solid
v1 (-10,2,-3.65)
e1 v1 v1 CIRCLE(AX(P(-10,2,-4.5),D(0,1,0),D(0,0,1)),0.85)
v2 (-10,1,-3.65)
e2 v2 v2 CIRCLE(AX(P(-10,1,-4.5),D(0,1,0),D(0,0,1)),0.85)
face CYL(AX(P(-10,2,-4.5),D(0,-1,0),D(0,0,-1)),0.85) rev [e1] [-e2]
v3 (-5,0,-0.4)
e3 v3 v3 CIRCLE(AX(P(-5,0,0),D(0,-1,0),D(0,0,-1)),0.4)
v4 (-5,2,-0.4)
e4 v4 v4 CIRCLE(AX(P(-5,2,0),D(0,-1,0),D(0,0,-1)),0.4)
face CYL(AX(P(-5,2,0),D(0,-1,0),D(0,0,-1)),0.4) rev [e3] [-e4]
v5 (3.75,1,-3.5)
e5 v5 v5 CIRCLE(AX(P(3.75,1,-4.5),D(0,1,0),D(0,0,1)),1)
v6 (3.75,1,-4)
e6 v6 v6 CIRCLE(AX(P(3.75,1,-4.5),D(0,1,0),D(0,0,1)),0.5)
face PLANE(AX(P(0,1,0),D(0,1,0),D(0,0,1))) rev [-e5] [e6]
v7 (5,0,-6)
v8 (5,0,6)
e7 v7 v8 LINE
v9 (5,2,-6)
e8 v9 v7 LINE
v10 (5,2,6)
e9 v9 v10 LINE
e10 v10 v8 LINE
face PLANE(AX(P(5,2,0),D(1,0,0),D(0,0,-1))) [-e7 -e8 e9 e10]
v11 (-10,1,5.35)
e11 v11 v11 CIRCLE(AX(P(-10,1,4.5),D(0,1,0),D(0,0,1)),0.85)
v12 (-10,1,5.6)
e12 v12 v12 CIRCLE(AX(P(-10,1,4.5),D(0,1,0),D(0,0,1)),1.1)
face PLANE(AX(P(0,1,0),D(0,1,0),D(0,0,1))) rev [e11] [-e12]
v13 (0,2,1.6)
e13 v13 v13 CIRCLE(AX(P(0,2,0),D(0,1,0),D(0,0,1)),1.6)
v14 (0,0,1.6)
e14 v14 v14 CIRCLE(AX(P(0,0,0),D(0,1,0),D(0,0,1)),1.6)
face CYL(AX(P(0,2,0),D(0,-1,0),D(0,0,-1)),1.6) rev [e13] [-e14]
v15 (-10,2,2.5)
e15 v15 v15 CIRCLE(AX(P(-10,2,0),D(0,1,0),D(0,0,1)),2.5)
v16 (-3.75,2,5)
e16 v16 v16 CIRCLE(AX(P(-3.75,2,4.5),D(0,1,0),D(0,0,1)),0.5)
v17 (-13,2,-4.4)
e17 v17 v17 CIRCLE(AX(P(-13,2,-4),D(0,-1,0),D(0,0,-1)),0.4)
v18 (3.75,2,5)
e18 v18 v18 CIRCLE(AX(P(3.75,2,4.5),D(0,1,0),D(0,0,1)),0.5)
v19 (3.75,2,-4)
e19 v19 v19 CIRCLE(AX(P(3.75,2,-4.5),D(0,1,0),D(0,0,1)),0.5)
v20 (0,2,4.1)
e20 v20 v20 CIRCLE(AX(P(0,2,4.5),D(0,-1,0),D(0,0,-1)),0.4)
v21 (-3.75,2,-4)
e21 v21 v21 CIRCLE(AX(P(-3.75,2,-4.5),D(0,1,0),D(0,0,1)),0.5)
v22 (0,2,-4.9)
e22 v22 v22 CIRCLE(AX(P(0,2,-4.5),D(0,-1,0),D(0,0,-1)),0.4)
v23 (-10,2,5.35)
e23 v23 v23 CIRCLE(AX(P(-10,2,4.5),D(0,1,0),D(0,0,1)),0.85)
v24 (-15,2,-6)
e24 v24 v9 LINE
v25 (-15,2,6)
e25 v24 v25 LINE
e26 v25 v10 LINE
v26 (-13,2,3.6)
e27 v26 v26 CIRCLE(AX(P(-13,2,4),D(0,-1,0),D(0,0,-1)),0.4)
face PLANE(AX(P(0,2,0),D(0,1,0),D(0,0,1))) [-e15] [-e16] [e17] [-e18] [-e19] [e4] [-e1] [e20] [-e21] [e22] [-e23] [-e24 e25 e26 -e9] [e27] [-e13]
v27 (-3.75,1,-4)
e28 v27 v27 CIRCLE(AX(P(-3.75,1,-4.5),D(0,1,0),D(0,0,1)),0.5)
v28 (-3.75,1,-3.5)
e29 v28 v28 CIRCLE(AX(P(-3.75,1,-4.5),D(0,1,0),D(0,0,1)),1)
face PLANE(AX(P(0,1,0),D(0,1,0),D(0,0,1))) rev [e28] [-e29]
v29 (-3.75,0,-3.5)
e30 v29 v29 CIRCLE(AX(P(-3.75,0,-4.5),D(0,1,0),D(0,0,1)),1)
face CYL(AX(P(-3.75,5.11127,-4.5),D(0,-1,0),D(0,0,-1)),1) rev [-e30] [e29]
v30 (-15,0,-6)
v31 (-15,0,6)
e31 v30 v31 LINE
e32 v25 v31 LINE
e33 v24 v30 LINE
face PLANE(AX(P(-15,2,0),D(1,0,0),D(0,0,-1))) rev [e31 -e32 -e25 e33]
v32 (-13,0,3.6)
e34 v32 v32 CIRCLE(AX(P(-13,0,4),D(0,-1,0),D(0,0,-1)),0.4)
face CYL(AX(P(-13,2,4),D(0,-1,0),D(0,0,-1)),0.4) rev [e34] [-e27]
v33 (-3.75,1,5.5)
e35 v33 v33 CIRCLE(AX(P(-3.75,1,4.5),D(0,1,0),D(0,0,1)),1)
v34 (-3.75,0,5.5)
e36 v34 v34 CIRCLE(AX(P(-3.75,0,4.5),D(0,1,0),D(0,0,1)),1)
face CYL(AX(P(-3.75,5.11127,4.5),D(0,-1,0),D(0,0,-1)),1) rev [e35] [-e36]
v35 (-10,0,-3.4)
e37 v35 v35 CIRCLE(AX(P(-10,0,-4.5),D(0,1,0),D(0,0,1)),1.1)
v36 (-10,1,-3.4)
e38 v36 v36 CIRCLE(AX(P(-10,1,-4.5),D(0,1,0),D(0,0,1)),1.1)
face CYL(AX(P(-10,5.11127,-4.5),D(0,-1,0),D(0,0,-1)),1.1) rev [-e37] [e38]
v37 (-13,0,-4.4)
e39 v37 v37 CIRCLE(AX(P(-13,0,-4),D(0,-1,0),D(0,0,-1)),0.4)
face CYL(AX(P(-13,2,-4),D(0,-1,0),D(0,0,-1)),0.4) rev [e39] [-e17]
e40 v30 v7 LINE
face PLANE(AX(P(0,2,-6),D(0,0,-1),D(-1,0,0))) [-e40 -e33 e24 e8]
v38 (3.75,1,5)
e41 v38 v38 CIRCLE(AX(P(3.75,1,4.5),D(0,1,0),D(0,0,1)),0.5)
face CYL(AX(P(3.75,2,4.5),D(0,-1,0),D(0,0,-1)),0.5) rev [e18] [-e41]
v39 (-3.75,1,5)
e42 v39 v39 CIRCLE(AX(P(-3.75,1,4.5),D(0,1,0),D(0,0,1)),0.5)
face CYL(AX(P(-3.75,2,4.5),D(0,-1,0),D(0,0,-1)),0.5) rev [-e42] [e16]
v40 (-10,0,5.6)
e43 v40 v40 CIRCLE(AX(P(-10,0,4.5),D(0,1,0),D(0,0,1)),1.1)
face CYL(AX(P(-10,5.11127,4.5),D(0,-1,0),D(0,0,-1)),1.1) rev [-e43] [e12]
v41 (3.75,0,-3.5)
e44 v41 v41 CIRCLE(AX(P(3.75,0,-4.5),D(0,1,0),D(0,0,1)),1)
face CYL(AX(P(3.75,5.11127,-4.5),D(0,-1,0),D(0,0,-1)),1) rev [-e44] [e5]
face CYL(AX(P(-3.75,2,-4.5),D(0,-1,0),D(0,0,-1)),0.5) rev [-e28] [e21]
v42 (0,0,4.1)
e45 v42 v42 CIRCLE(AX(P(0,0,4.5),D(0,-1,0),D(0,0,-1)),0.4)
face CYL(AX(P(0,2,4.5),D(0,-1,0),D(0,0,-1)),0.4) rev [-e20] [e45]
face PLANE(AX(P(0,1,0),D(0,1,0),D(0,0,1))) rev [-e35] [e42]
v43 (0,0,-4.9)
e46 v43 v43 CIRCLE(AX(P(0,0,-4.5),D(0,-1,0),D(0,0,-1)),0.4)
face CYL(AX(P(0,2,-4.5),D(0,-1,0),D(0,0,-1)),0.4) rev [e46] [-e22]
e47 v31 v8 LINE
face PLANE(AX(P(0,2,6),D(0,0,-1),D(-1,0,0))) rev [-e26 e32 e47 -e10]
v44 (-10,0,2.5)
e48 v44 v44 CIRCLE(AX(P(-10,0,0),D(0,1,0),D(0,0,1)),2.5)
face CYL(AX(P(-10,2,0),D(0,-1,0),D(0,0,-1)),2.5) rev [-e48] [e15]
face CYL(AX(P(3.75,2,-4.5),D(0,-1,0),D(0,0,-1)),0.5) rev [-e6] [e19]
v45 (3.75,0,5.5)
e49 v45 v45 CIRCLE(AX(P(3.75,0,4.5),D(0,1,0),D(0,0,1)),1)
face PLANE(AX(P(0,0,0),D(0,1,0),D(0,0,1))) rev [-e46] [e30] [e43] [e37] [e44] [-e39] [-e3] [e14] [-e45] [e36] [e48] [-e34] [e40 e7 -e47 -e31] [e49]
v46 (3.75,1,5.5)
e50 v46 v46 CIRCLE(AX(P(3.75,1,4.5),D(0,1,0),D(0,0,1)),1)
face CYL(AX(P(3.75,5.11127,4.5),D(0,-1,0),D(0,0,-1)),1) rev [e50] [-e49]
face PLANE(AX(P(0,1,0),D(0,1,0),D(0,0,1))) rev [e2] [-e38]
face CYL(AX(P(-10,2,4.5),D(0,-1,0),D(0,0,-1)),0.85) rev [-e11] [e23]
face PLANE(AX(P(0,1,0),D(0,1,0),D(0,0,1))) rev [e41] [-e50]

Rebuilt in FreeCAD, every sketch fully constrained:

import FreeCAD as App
import Part
import Sketcher
from FreeCAD import Vector
Q = App.Units.Quantity


def add_polygon(sketch, points):
    """Adds a closed chain of lines whose ends are joined by coincident constraints."""
    first, n = sketch.GeometryCount, len(points)
    for a, b in zip(points, points[1:] + points[:1]):
        sketch.addGeometry(Part.LineSegment(App.Vector(*a, 0), App.Vector(*b, 0)), False)
    for i in range(n):
        sketch.addConstraint(Sketcher.Constraint("Coincident", first + i, 2, first + (i + 1) % n, 1))

doc = App.newDocument("Part")
body = doc.addObject("PartDesign::Body", "Body")

# Sketch on XZ plane
sketch1 = doc.addObject("Sketcher::SketchObject", "Sketch")
body.addObject(sketch1)
sketch1.AttachmentSupport = (doc.XZ_Plane, [""])
sketch1.MapMode = "FlatFace"
add_polygon(sketch1, [(-15, -6), (-15, 6), (5, 6), (5, -6)])  # lines 0-3
sketch1.addGeometry(Part.Circle(Vector(-10, 0, 0), Vector(0, 0, 1), 2.5), False)  # 4
sketch1.addGeometry(Part.Circle(Vector(0, 0, 0), Vector(0, 0, 1), 1.6), False)  # 5
sketch1.addConstraint([
    Sketcher.Constraint("Vertical", 0),
    Sketcher.Constraint("Horizontal", 1),
    Sketcher.Constraint("Vertical", 2),
    Sketcher.Constraint("Horizontal", 3),
    Sketcher.Constraint("Coincident", 5, 3, -1, 1),
    Sketcher.Constraint("PointOnObject", 4, 3, -1),
    Sketcher.Constraint("Diameter", 4, Q("5 mm")),
    Sketcher.Constraint("Diameter", 5, Q("3.2 mm")),
    Sketcher.Constraint("DistanceX", 1, 1, 1, 2, Q("20 mm")),
    Sketcher.Constraint("DistanceY", 0, 1, 0, 2, Q("12 mm")),
    Sketcher.Constraint("DistanceX", 4, 3, -1, 1, Q("10 mm")),
    Sketcher.Constraint("DistanceX", 0, 2, -1, 1, Q("15 mm")),
    Sketcher.Constraint("DistanceY", -1, 1, 0, 2, Q("6 mm")),
])
pad1 = doc.addObject("PartDesign::Pad", "Pad")
body.addObject(pad1)
pad1.Profile = sketch1
pad1.Length = 2
pad1.Reversed = True

# Sketch on XZ plane
sketch2 = doc.addObject("Sketcher::SketchObject", "Sketch001")
body.addObject(sketch2)
sketch2.AttachmentSupport = (doc.XZ_Plane, [""])
sketch2.MapMode = "FlatFace"
sketch2.addGeometry([
    Part.Circle(Vector(-3.75, -4.5, 0), Vector(0, 0, 1), 0.5),  # 0
    Part.Circle(Vector(3.75, 4.5, 0), Vector(0, 0, 1), 0.5),  # 1
    Part.Circle(Vector(3.75, -4.5, 0), Vector(0, 0, 1), 0.5),  # 2
    Part.Circle(Vector(-3.75, 4.5, 0), Vector(0, 0, 1), 0.5),  # 3
    Part.Circle(Vector(-10, -4.5, 0), Vector(0, 0, 1), 0.85),  # 4
    Part.Circle(Vector(-10, 4.5, 0), Vector(0, 0, 1), 0.85),  # 5
], False)
sketch2.addConstraint([
    Sketcher.Constraint("Equal", 0, 1),
    Sketcher.Constraint("Equal", 1, 2),
    Sketcher.Constraint("Equal", 2, 3),
    Sketcher.Constraint("Equal", 4, 5),
    Sketcher.Constraint("Symmetric", 0, 3, 1, 3, -1, 1),
    Sketcher.Constraint("Symmetric", 2, 3, 3, 3, -1, 1),
    Sketcher.Constraint("Symmetric", 0, 3, 2, 3, -2),
    Sketcher.Constraint("Symmetric", 4, 3, 5, 3, -1),
    Sketcher.Constraint("Horizontal", 2, 3, 4, 3),
    Sketcher.Constraint("Diameter", 0, Q("1 mm")),
    Sketcher.Constraint("Diameter", 4, Q("1.7 mm")),
    Sketcher.Constraint("DistanceX", 4, 3, -1, 1, Q("10 mm")),
    Sketcher.Constraint("DistanceY", 0, 3, 1, 3, Q("9 mm")),
    Sketcher.Constraint("DistanceX", 0, 3, 1, 3, Q("7.5 mm")),
])
pocket1 = doc.addObject("PartDesign::Pocket", "Pocket")
body.addObject(pocket1)
pocket1.Profile = sketch2
pocket1.Type = "ThroughAll"

# Sketch on XZ plane
sketch3 = doc.addObject("Sketcher::SketchObject", "Sketch002")
body.addObject(sketch3)
sketch3.AttachmentSupport = (doc.XZ_Plane, [""])
sketch3.MapMode = "FlatFace"
sketch3.addGeometry([
    Part.Circle(Vector(-3.75, -4.5, 0), Vector(0, 0, 1), 1),  # 0
    Part.Circle(Vector(3.75, -4.5, 0), Vector(0, 0, 1), 1),  # 1
    Part.Circle(Vector(-3.75, 4.5, 0), Vector(0, 0, 1), 1),  # 2
    Part.Circle(Vector(3.75, 4.5, 0), Vector(0, 0, 1), 1),  # 3
    Part.Circle(Vector(-10, 4.5, 0), Vector(0, 0, 1), 1.1),  # 4
    Part.Circle(Vector(-10, -4.5, 0), Vector(0, 0, 1), 1.1),  # 5
], False)
sketch3.addConstraint([
    Sketcher.Constraint("Equal", 0, 1),
    Sketcher.Constraint("Equal", 1, 2),
    Sketcher.Constraint("Equal", 2, 3),
    Sketcher.Constraint("Equal", 4, 5),
    Sketcher.Constraint("Symmetric", 1, 3, 2, 3, -1, 1),
    Sketcher.Constraint("Symmetric", 0, 3, 3, 3, -1, 1),
    Sketcher.Constraint("Symmetric", 0, 3, 1, 3, -2),
    Sketcher.Constraint("Symmetric", 4, 3, 5, 3, -1),
    Sketcher.Constraint("Horizontal", 3, 3, 4, 3),
    Sketcher.Constraint("Diameter", 0, Q("2 mm")),
    Sketcher.Constraint("Diameter", 4, Q("2.2 mm")),
    Sketcher.Constraint("DistanceX", 4, 3, -1, 1, Q("10 mm")),
    Sketcher.Constraint("DistanceY", 0, 3, 2, 3, Q("9 mm")),
    Sketcher.Constraint("DistanceX", 0, 3, 1, 3, Q("7.5 mm")),
])
pocket2 = doc.addObject("PartDesign::Pocket", "Pocket001")
body.addObject(pocket2)
pocket2.Profile = sketch3
pocket2.Length = 1

# Sketch on XZ plane
sketch4 = doc.addObject("Sketcher::SketchObject", "Sketch003")
body.addObject(sketch4)
sketch4.AttachmentSupport = (doc.XZ_Plane, [""])
sketch4.MapMode = "FlatFace"
sketch4.addGeometry([
    Part.Circle(Vector(-13, 4, 0), Vector(0, 0, 1), 0.4),  # 0
    Part.Circle(Vector(-5, 0, 0), Vector(0, 0, 1), 0.4),  # 1
    Part.Circle(Vector(-13, -4, 0), Vector(0, 0, 1), 0.4),  # 2
    Part.Circle(Vector(0, -4.5, 0), Vector(0, 0, 1), 0.4),  # 3
    Part.Circle(Vector(0, 4.5, 0), Vector(0, 0, 1), 0.4),  # 4
], False)
sketch4.addConstraint([
    Sketcher.Constraint("Equal", 0, 1),
    Sketcher.Constraint("Equal", 1, 2),
    Sketcher.Constraint("Equal", 2, 3),
    Sketcher.Constraint("Equal", 3, 4),
    Sketcher.Constraint("Symmetric", 3, 3, 4, 3, -1, 1),
    Sketcher.Constraint("Symmetric", 0, 3, 2, 3, -1),
    Sketcher.Constraint("PointOnObject", 1, 3, -1),
    Sketcher.Constraint("PointOnObject", 3, 3, -2),
    Sketcher.Constraint("Diameter", 0, Q("0.8 mm")),
    Sketcher.Constraint("DistanceX", 0, 3, -1, 1, Q("13 mm")),
    Sketcher.Constraint("DistanceY", -1, 1, 0, 3, Q("4 mm")),
    Sketcher.Constraint("DistanceX", 1, 3, -1, 1, Q("5 mm")),
    Sketcher.Constraint("DistanceY", 3, 3, 4, 3, Q("9 mm")),
])
pocket3 = doc.addObject("PartDesign::Pocket", "Pocket002")
body.addObject(pocket3)
pocket3.Profile = sketch4
pocket3.Type = "ThroughAll"

doc.recompute()
